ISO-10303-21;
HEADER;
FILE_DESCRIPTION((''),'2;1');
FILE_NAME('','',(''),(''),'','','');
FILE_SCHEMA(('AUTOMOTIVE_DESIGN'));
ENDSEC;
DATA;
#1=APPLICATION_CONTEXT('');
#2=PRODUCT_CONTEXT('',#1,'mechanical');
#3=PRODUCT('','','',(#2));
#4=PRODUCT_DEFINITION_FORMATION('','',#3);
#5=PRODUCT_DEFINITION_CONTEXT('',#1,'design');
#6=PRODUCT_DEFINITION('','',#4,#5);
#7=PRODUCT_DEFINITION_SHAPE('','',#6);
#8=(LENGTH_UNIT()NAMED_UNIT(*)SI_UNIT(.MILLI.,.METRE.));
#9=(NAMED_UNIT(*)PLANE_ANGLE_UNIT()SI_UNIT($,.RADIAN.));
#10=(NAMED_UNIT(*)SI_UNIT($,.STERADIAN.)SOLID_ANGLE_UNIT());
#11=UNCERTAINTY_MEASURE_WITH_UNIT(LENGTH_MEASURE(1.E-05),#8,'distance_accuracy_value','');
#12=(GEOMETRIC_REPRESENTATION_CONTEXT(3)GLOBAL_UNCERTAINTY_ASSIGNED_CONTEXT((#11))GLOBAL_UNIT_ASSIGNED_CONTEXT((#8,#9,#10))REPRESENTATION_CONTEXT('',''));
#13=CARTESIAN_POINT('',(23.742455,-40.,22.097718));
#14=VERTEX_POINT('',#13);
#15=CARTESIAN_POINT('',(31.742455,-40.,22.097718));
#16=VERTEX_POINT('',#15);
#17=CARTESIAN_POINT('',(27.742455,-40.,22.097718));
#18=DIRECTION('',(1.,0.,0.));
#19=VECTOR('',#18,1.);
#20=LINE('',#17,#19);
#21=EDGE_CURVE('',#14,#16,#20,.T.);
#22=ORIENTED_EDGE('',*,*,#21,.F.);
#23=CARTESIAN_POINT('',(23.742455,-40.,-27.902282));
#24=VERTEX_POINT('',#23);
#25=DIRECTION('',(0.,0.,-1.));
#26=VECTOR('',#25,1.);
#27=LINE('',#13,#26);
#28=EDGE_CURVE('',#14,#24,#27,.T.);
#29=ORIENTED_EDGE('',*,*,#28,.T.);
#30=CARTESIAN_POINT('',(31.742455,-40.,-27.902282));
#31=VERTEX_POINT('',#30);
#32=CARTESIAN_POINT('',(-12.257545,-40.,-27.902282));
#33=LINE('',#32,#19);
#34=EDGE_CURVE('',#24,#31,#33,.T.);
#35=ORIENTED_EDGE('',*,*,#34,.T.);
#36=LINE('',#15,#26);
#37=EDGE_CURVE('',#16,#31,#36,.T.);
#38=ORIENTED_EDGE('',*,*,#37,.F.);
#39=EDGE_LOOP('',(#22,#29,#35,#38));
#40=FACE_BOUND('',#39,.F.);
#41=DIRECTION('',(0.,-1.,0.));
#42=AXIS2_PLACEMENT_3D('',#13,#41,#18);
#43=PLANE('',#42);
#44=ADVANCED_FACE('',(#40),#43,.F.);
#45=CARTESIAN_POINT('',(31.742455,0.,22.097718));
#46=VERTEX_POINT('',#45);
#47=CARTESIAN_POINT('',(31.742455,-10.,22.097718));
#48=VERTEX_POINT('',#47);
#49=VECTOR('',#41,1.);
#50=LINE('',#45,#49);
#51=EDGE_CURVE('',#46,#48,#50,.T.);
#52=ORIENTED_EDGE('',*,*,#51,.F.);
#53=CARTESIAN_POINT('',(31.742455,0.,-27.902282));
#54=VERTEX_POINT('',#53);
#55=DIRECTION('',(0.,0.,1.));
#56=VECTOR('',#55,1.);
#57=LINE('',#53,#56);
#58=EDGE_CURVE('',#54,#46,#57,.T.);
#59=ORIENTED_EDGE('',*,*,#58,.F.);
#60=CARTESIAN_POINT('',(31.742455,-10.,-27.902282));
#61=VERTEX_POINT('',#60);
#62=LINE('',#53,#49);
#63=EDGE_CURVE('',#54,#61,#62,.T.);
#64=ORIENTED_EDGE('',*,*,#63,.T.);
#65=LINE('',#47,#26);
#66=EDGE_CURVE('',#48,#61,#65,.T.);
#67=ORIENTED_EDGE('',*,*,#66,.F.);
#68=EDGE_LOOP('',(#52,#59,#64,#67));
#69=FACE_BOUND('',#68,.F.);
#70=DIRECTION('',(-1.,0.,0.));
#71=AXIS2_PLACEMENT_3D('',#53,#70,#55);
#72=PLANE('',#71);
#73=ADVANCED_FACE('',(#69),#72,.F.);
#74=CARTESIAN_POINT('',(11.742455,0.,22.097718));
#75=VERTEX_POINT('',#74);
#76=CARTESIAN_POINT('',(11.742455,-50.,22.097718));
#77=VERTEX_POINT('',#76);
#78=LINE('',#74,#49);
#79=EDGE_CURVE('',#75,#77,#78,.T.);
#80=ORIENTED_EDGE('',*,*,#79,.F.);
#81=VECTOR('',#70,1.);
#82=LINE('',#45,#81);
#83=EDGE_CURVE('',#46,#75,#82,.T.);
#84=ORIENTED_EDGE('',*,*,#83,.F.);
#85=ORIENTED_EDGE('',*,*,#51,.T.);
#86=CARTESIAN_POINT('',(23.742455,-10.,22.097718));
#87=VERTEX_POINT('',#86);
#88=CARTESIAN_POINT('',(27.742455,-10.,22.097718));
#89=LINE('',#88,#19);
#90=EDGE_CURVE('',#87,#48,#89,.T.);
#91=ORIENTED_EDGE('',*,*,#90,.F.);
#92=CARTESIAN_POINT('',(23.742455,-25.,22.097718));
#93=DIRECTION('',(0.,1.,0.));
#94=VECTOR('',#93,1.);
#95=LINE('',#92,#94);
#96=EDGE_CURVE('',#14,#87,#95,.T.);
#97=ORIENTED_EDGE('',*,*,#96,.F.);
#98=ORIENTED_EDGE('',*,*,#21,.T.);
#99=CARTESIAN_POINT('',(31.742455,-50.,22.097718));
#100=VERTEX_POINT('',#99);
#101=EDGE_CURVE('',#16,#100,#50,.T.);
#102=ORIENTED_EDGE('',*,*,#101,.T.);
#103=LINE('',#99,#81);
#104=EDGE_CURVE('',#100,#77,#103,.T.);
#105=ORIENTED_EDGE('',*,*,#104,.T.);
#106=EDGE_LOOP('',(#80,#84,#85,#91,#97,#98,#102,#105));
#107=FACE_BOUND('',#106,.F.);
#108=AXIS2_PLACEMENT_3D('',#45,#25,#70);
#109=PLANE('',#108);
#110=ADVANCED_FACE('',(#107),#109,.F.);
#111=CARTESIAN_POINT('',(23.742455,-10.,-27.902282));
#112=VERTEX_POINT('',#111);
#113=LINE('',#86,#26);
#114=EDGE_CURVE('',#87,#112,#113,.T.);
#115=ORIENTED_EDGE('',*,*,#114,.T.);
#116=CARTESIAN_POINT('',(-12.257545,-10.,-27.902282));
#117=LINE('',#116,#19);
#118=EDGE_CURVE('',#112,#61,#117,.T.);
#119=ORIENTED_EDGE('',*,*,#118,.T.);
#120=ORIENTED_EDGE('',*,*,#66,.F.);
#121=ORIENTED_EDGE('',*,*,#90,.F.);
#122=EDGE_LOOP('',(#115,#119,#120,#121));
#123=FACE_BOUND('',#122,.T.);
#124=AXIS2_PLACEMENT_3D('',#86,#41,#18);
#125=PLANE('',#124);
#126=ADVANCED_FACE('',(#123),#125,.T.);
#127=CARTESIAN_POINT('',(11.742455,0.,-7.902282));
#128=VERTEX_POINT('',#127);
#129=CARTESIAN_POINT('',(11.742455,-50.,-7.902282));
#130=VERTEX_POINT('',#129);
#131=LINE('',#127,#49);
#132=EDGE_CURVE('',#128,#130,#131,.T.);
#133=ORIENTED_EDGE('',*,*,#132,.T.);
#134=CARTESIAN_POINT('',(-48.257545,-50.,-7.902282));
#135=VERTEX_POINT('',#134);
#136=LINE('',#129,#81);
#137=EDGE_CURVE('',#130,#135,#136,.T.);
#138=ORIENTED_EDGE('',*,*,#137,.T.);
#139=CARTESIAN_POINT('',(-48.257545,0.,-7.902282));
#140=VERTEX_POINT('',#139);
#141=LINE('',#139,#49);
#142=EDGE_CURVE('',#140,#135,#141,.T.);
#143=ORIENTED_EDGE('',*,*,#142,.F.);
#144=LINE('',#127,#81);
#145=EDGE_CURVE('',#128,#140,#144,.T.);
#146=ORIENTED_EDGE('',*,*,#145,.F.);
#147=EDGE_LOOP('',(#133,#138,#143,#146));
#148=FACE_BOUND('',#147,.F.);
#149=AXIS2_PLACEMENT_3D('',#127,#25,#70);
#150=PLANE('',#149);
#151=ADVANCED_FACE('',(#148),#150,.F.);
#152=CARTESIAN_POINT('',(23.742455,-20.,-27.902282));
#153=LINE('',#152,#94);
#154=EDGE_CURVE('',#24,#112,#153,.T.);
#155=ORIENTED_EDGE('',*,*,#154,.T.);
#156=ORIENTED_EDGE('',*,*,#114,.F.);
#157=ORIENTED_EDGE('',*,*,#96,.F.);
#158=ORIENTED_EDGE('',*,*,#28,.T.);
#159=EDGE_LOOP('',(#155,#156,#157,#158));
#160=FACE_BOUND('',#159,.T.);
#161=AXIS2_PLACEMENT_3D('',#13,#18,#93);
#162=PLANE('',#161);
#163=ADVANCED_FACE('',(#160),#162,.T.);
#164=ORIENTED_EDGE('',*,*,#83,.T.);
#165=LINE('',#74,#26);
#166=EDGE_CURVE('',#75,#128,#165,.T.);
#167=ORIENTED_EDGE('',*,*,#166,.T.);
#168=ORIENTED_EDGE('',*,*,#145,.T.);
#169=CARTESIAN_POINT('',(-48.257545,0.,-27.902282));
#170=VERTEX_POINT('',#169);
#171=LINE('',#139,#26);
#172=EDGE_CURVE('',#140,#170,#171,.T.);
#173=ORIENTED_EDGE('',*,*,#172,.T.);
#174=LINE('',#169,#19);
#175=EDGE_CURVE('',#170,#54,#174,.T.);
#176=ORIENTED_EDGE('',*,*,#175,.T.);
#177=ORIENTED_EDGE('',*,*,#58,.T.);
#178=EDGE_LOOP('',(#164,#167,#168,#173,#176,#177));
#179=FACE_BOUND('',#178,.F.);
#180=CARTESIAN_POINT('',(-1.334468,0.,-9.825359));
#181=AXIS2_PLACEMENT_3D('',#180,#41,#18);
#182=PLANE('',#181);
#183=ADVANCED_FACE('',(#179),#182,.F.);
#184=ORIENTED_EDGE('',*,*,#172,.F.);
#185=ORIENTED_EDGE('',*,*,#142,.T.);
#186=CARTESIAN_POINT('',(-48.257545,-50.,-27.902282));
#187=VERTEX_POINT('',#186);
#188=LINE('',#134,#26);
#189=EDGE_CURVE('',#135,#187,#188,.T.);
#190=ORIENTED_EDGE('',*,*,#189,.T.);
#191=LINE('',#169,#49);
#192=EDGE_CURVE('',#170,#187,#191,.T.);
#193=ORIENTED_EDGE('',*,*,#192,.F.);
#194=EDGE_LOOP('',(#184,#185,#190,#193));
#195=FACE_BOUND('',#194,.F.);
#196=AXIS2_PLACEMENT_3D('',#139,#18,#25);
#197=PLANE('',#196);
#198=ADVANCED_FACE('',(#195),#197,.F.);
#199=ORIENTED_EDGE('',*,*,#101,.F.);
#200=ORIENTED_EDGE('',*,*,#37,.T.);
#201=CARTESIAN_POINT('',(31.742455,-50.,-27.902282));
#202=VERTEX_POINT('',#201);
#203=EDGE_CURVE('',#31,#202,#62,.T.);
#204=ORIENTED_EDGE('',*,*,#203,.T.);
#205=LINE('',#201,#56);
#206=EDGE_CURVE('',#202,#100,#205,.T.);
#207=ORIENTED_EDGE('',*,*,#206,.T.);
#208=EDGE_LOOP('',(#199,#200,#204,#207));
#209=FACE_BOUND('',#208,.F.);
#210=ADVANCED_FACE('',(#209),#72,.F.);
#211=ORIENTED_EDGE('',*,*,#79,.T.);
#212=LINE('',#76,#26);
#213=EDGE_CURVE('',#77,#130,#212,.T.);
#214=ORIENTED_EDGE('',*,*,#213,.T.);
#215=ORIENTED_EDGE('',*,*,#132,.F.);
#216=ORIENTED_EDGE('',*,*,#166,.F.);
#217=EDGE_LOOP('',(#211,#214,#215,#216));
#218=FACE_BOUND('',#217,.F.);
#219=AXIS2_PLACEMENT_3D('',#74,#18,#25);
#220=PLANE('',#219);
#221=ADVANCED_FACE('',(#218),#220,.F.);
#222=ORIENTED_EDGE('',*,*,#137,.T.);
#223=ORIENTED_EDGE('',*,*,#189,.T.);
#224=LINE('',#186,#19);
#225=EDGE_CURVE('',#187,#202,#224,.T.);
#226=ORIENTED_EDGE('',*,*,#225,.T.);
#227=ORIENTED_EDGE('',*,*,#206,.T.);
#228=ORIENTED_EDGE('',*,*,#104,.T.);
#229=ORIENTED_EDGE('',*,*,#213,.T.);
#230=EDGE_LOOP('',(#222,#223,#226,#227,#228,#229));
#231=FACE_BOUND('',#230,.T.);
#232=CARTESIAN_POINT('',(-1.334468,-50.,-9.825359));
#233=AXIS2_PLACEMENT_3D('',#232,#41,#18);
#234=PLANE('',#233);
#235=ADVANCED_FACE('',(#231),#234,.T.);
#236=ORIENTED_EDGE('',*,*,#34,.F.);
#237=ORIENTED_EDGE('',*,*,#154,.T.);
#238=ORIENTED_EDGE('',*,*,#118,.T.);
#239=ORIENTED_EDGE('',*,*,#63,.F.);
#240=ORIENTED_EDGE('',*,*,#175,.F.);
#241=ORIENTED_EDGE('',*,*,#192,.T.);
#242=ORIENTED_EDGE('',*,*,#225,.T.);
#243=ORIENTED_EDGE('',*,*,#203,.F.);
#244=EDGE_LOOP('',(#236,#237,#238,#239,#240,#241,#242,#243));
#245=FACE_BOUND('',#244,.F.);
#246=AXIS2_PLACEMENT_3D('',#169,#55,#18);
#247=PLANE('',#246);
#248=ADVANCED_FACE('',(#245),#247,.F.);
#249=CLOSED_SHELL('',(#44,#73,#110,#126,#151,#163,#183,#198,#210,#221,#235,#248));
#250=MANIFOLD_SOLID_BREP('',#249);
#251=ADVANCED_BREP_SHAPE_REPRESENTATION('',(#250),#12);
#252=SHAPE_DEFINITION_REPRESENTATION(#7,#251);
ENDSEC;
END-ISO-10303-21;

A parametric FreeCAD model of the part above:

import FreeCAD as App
import Part
import Sketcher

V = App.Vector


def add_polygon(sketch, points):
    """Adds a closed chain of lines whose ends are joined by coincident constraints."""
    first, n = sketch.GeometryCount, len(points)
    for a, b in zip(points, points[1:] + points[:1]):
        sketch.addGeometry(Part.LineSegment(App.Vector(*a, 0), App.Vector(*b, 0)), False)
    for i in range(n):
        sketch.addConstraint(Sketcher.Constraint("Coincident", first + i, 2, first + (i + 1) % n, 1))

doc = App.newDocument("Part")
body = doc.addObject("PartDesign::Body", "Body")

# Sketch on XZ plane
sketch1 = doc.addObject("Sketcher::SketchObject", "Sketch")
body.addObject(sketch1)
sketch1.AttachmentSupport = (doc.XZ_Plane, [""])
sketch1.MapMode = "FlatFace"
add_polygon(sketch1, [(11.742455, -7.902282), (-48.257545, -7.902282), (-48.257545, -27.902282), (31.742455, -27.902282), (31.742455, 22.097718), (11.742455, 22.097718)])  # lines 0-5
sketch1.addConstraint(Sketcher.Constraint("Horizontal", 0))
sketch1.addConstraint(Sketcher.Constraint("Vertical", 1))
sketch1.addConstraint(Sketcher.Constraint("Horizontal", 2))
sketch1.addConstraint(Sketcher.Constraint("Vertical", 3))
sketch1.addConstraint(Sketcher.Constraint("Horizontal", 4))
sketch1.addConstraint(Sketcher.Constraint("Vertical", 5))
sketch1.addConstraint(Sketcher.Constraint("Equal", 4, 1))
sketch1.addConstraint(Sketcher.Constraint("DistanceX", 0, 2, 0, 1, 60.0))
sketch1.addConstraint(Sketcher.Constraint("DistanceX", 2, 1, 2, 2, 80.0))
sketch1.addConstraint(Sketcher.Constraint("DistanceY", 3, 1, 3, 2, 50.0))
sketch1.addConstraint(Sketcher.Constraint("DistanceY", 0, 2, -1, 1, 7.902282))
sketch1.addConstraint(Sketcher.Constraint("DistanceX", 0, 2, -1, 1, 48.257545))
pad1 = doc.addObject("PartDesign::Pad", "Pad")
body.addObject(pad1)
pad1.Profile = sketch1
pad1.Length = 50

# Sketch on XY plane
sketch2 = doc.addObject("Sketcher::SketchObject", "Sketch001")
body.addObject(sketch2)
sketch2.AttachmentSupport = (doc.XY_Plane, [""])
sketch2.MapMode = "FlatFace"
sketch2.AttachmentOffset = App.Placement(V(0, 0, 22.097718), App.Rotation())
add_polygon(sketch2, [(23.742455, -10), (23.742455, -40), (31.742455, -40), (31.742455, -10)])  # lines 0-3
sketch2.addConstraint(Sketcher.Constraint("Vertical", 0))
sketch2.addConstraint(Sketcher.Constraint("Horizontal", 1))
sketch2.addConstraint(Sketcher.Constraint("Vertical", 2))
sketch2.addConstraint(Sketcher.Constraint("Horizontal", 3))
sketch2.addConstraint(Sketcher.Constraint("DistanceX", 1, 1, 1, 2, 8.0))
sketch2.addConstraint(Sketcher.Constraint("DistanceY", 0, 2, 0, 1, 30.0))
sketch2.addConstraint(Sketcher.Constraint("DistanceY", 0, 2, -1, 1, 40.0))
sketch2.addConstraint(Sketcher.Constraint("DistanceX", -1, 1, 0, 2, 23.742455))
pocket1 = doc.addObject("PartDesign::Pocket", "Pocket")
body.addObject(pocket1)
pocket1.Profile = sketch2
pocket1.Length = 57.2

doc.recompute()
